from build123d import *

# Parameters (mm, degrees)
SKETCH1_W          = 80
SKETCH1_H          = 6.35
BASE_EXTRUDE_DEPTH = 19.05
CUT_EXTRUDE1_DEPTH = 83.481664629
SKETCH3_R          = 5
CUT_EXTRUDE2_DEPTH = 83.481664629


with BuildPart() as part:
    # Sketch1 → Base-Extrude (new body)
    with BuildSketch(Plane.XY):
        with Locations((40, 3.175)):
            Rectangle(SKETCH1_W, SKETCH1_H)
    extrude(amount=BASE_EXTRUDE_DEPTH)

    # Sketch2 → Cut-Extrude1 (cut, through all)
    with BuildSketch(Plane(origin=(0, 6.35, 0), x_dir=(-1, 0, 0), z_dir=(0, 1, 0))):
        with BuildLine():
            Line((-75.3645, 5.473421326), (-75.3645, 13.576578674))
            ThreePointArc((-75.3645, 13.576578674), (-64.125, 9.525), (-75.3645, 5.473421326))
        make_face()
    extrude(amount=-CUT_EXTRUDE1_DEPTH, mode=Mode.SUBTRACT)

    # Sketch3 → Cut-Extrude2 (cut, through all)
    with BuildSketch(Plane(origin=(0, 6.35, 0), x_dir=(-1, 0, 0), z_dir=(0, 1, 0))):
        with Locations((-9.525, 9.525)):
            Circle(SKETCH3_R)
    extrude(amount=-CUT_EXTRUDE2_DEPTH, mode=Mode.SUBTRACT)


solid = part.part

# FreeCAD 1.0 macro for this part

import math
import FreeCAD as App
import Part
import Sketcher

V = App.Vector
Q = App.Units.Quantity

doc = App.newDocument("Part")
body = doc.addObject("PartDesign::Body", "Body")

sketch1 = doc.addObject("Sketcher::SketchObject", "Sketch")
body.addObject(sketch1)
sketch1.AttachmentSupport = (doc.XY_Plane, [""])
sketch1.MapMode = "FlatFace"
sketch1.addGeometry(Part.LineSegment(V(0, 6, 0), V(0, 0, 0)), False)
sketch1.addGeometry(Part.LineSegment(V(0, 0, 0), V(80, 0, 0)), False)
sketch1.addGeometry(Part.LineSegment(V(80, 0, 0), V(80, 6, 0)), False)
sketch1.addGeometry(Part.LineSegment(V(80, 6, 0), V(0, 6, 0)), False)
sketch1.addConstraint(Sketcher.Constraint("Coincident", 0, 2, 1, 1))
sketch1.addConstraint(Sketcher.Constraint("Coincident", 1, 2, 2, 1))
sketch1.addConstraint(Sketcher.Constraint("Coincident", 2, 2, 3, 1))
sketch1.addConstraint(Sketcher.Constraint("Coincident", 3, 2, 0, 1))
sketch1.addConstraint(Sketcher.Constraint("Vertical", 0))
sketch1.addConstraint(Sketcher.Constraint("Horizontal", 1))
sketch1.addConstraint(Sketcher.Constraint("Vertical", 2))
sketch1.addConstraint(Sketcher.Constraint("Horizontal", 3))
sketch1.addConstraint(Sketcher.Constraint("Coincident", 0, 2, -1, 1))
sketch1.addConstraint(Sketcher.Constraint("DistanceY", 0, 2, 0, 1, Q("0.25 in")))
sketch1.addConstraint(Sketcher.Constraint("DistanceX", 1, 1, 1, 2, Q("80 mm")))
pad1 = doc.addObject("PartDesign::Pad", "Pad")
body.addObject(pad1)
pad1.Profile = sketch1
pad1.Length = Q("0.75 in")

sketch2 = doc.addObject("Sketcher::SketchObject", "Sketch001")
body.addObject(sketch2)
sketch2.AttachmentSupport = (doc.XZ_Plane, [""])
sketch2.MapMode = "FlatFace"
sketch2.AttachmentOffset = App.Placement(V(0, 0, -0.25 * 25.4), App.Rotation())
sketch2.addGeometry(Part.LineSegment(V(75, 14, 0), V(75, 5, 0)), False)
sketch2.addGeometry(Part.ArcOfCircle(Part.Circle(V(70, 10, 0), V(0, 0, 1), 6), math.radians(40), math.radians(320)), False)
sketch2.addConstraint(Sketcher.Constraint("Coincident", 0, 1, 1, 1))
sketch2.addConstraint(Sketcher.Constraint("Coincident", 1, 2, 0, 2))
sketch2.addConstraint(Sketcher.Constraint("Vertical", 0))
sketch2.addConstraint(Sketcher.Constraint("Radius", 1, Q("0.25 in")))
sketch2.addConstraint(Sketcher.Constraint("DistanceY", -1, 1, 1, 3, Q("0.375 in")))
sketch2.addConstraint(Sketcher.Constraint("DistanceX", 1, 3, 0, 1, Q("0.1925 in")))
sketch2.addConstraint(Sketcher.Constraint("DistanceX", -1, 1, 1, 3, Q("70.475 mm")))
pocket1 = doc.addObject("PartDesign::Pocket", "Pocket")
body.addObject(pocket1)
pocket1.Profile = sketch2
pocket1.Type = "ThroughAll"
pocket1.Reversed = True

sketch3 = doc.addObject("Sketcher::SketchObject", "Sketch002")
body.addObject(sketch3)
sketch3.AttachmentSupport = (doc.XZ_Plane, [""])
sketch3.MapMode = "FlatFace"
sketch3.AttachmentOffset = App.Placement(V(0, 0, -0.25 * 25.4), App.Rotation())
sketch3.addGeometry(Part.Circle(V(10, 10, 0), V(0, 0, 1), 5), False)
sketch3.addConstraint(Sketcher.Constraint("Diameter", 0, Q("10 mm")))
sketch3.addConstraint(Sketcher.Constraint("DistanceX", -1, 1, 0, 3, Q("0.375 in")))
sketch3.addConstraint(Sketcher.Constraint("DistanceY", -1, 1, 0, 3, Q("0.375 in")))
pocket2 = doc.addObject("PartDesign::Pocket", "Pocket001")
body.addObject(pocket2)
pocket2.Profile = sketch3
pocket2.Type = "ThroughAll"
pocket2.Reversed = True

doc.recompute()
